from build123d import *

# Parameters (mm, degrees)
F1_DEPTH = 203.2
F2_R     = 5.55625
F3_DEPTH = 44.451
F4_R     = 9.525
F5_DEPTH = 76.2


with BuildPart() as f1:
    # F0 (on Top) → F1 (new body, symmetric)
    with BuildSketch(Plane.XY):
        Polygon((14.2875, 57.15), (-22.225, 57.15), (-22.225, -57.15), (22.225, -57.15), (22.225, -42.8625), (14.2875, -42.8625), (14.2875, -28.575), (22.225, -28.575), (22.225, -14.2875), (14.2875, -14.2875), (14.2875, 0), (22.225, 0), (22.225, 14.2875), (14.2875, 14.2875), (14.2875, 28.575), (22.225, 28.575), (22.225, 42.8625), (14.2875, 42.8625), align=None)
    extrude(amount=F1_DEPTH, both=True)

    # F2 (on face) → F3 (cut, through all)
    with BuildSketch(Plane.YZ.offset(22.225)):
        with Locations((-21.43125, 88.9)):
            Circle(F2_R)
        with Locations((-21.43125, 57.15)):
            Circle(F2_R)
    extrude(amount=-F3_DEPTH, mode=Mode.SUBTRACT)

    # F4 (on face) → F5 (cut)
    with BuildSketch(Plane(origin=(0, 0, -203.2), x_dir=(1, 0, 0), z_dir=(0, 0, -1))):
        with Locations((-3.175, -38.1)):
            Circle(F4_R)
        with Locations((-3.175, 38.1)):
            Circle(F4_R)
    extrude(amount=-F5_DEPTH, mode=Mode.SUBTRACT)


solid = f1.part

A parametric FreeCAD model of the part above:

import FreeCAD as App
import Part
import Sketcher

V = App.Vector
Q = App.Units.Quantity


def add_polygon(sketch, points):
    """Adds a closed chain of lines whose ends are joined by coincident constraints."""
    first, n = sketch.GeometryCount, len(points)
    for a, b in zip(points, points[1:] + points[:1]):
        sketch.addGeometry(Part.LineSegment(App.Vector(*a, 0), App.Vector(*b, 0)), False)
    for i in range(n):
        sketch.addConstraint(Sketcher.Constraint("Coincident", first + i, 2, first + (i + 1) % n, 1))

doc = App.newDocument("Part")
body = doc.addObject("PartDesign::Body", "Body")

# Sketch on XY plane
sketch1 = body.newObject("Sketcher::SketchObject", "Sketch")
sketch1.AttachmentSupport = (doc.getObject("XY_Plane"), [""])
sketch1.MapMode = "FlatFace"
add_polygon(sketch1, [(14.2875, 57.15), (-22.225, 57.15), (-22.225, -57.15), (22.225, -57.15), (22.225, -42.8625), (14.2875, -42.8625), (14.2875, -28.575), (22.225, -28.575), (22.225, -14.2875), (14.2875, -14.2875), (14.2875, 0), (22.225, 0), (22.225, 14.2875), (14.2875, 14.2875), (14.2875, 28.575), (22.225, 28.575), (22.225, 42.8625), (14.2875, 42.8625)])  # lines 0-17
sketch1.addConstraint([
    Sketcher.Constraint("Horizontal", 0),
    Sketcher.Constraint("Vertical", 1),
    Sketcher.Constraint("Horizontal", 2),
    Sketcher.Constraint("Vertical", 3),
    Sketcher.Constraint("Horizontal", 4),
    Sketcher.Constraint("Vertical", 5),
    Sketcher.Constraint("Horizontal", 6),
    Sketcher.Constraint("Vertical", 7),
    Sketcher.Constraint("Horizontal", 8),
    Sketcher.Constraint("Vertical", 9),
    Sketcher.Constraint("Horizontal", 10),
    Sketcher.Constraint("Vertical", 11),
    Sketcher.Constraint("Horizontal", 12),
    Sketcher.Constraint("Vertical", 13),
    Sketcher.Constraint("Horizontal", 14),
    Sketcher.Constraint("Vertical", 15),
    Sketcher.Constraint("Horizontal", 16),
    Sketcher.Constraint("Vertical", 17),
    Sketcher.Constraint("Symmetric", 0, 2, 2, 2, -1, 1),
    Sketcher.Constraint("Symmetric", 7, 2, 11, 2, -1),
    Sketcher.Constraint("Symmetric", 5, 2, 13, 2, -1),
    Sketcher.Constraint("Symmetric", 3, 2, 15, 2, -1),
    Sketcher.Constraint("PointOnObject", 9, 2, -1),
    Sketcher.Constraint("Vertical", 3, 2, 6, 2),
    Sketcher.Constraint("Vertical", 5, 2, 8, 2),
    Sketcher.Constraint("Vertical", 13, 2, 16, 2),
    Sketcher.Constraint("Equal", 3, 5),
    Sketcher.Constraint("Equal", 5, 7),
    Sketcher.Constraint("Equal", 7, 9),
    Sketcher.Constraint("DistanceY", 1, 2, 1, 1, Q("4.5 in")),
    Sketcher.Constraint("DistanceX", 2, 1, 2, 2, Q("1.75 in")),
    Sketcher.Constraint("DistanceX", 0, 2, 0, 1, Q("1.4375 in")),
])
pad1 = body.newObject("PartDesign::Pad", "Pad")
pad1.Profile = sketch1
pad1.Length = Q("16 in")
pad1.Midplane = True

# Sketch on YZ plane
sketch2 = body.newObject("Sketcher::SketchObject", "Sketch001")
sketch2.AttachmentSupport = (doc.getObject("YZ_Plane"), [""])
sketch2.MapMode = "FlatFace"
sketch2.AttachmentOffset = App.Placement(V(0, 0, 0.875 * 25.4), App.Rotation())
sketch2.addGeometry([
    Part.Circle(V(-21.43125, 88.9, 0), V(0, 0, 1), 5.55625),
    Part.Circle(V(-21.43125, 57.15, 0), V(0, 0, 1), 5.55625),
], False)
sketch2.addConstraint([
    Sketcher.Constraint("Equal", 0, 1),
    Sketcher.Constraint("Vertical", 0, 3, 1, 3),
    Sketcher.Constraint("Diameter", 0, Q("0.4375 in")),
    Sketcher.Constraint("DistanceY", -1, 1, 0, 3, Q("3.5 in")),
    Sketcher.Constraint("DistanceY", -1, 1, 1, 3, Q("2.25 in")),
    Sketcher.Constraint("DistanceX", 0, 3, -1, 1, Q("0.84375 in")),
])
pocket1 = body.newObject("PartDesign::Pocket", "Pocket")
pocket1.Profile = sketch2
pocket1.Type = "ThroughAll"

# Sketch on XY plane
sketch3 = body.newObject("Sketcher::SketchObject", "Sketch002")
sketch3.AttachmentSupport = (doc.getObject("XY_Plane"), [""])
sketch3.MapMode = "FlatFace"
sketch3.AttachmentOffset = App.Placement(V(0, 0, -8 * 25.4), App.Rotation())
sketch3.addGeometry([
    Part.Circle(V(-3.175, 38.1, 0), V(0, 0, 1), 9.525),
    Part.Circle(V(-3.175, -38.1, 0), V(0, 0, 1), 9.525),
], False)
sketch3.addConstraint([
    Sketcher.Constraint("Equal", 0, 1),
    Sketcher.Constraint("Symmetric", 0, 3, 1, 3, -1),
    Sketcher.Constraint("Diameter", 0, Q("0.75 in")),
    Sketcher.Constraint("DistanceY", 1, 3, 0, 3, Q("3 in")),
    Sketcher.Constraint("DistanceX", 0, 3, -1, 1, Q("0.125 in")),
])
pocket2 = body.newObject("PartDesign::Pocket", "Pocket001")
pocket2.Profile = sketch3
pocket2.Length = Q("3 in")
pocket2.Reversed = True

doc.recompute()
